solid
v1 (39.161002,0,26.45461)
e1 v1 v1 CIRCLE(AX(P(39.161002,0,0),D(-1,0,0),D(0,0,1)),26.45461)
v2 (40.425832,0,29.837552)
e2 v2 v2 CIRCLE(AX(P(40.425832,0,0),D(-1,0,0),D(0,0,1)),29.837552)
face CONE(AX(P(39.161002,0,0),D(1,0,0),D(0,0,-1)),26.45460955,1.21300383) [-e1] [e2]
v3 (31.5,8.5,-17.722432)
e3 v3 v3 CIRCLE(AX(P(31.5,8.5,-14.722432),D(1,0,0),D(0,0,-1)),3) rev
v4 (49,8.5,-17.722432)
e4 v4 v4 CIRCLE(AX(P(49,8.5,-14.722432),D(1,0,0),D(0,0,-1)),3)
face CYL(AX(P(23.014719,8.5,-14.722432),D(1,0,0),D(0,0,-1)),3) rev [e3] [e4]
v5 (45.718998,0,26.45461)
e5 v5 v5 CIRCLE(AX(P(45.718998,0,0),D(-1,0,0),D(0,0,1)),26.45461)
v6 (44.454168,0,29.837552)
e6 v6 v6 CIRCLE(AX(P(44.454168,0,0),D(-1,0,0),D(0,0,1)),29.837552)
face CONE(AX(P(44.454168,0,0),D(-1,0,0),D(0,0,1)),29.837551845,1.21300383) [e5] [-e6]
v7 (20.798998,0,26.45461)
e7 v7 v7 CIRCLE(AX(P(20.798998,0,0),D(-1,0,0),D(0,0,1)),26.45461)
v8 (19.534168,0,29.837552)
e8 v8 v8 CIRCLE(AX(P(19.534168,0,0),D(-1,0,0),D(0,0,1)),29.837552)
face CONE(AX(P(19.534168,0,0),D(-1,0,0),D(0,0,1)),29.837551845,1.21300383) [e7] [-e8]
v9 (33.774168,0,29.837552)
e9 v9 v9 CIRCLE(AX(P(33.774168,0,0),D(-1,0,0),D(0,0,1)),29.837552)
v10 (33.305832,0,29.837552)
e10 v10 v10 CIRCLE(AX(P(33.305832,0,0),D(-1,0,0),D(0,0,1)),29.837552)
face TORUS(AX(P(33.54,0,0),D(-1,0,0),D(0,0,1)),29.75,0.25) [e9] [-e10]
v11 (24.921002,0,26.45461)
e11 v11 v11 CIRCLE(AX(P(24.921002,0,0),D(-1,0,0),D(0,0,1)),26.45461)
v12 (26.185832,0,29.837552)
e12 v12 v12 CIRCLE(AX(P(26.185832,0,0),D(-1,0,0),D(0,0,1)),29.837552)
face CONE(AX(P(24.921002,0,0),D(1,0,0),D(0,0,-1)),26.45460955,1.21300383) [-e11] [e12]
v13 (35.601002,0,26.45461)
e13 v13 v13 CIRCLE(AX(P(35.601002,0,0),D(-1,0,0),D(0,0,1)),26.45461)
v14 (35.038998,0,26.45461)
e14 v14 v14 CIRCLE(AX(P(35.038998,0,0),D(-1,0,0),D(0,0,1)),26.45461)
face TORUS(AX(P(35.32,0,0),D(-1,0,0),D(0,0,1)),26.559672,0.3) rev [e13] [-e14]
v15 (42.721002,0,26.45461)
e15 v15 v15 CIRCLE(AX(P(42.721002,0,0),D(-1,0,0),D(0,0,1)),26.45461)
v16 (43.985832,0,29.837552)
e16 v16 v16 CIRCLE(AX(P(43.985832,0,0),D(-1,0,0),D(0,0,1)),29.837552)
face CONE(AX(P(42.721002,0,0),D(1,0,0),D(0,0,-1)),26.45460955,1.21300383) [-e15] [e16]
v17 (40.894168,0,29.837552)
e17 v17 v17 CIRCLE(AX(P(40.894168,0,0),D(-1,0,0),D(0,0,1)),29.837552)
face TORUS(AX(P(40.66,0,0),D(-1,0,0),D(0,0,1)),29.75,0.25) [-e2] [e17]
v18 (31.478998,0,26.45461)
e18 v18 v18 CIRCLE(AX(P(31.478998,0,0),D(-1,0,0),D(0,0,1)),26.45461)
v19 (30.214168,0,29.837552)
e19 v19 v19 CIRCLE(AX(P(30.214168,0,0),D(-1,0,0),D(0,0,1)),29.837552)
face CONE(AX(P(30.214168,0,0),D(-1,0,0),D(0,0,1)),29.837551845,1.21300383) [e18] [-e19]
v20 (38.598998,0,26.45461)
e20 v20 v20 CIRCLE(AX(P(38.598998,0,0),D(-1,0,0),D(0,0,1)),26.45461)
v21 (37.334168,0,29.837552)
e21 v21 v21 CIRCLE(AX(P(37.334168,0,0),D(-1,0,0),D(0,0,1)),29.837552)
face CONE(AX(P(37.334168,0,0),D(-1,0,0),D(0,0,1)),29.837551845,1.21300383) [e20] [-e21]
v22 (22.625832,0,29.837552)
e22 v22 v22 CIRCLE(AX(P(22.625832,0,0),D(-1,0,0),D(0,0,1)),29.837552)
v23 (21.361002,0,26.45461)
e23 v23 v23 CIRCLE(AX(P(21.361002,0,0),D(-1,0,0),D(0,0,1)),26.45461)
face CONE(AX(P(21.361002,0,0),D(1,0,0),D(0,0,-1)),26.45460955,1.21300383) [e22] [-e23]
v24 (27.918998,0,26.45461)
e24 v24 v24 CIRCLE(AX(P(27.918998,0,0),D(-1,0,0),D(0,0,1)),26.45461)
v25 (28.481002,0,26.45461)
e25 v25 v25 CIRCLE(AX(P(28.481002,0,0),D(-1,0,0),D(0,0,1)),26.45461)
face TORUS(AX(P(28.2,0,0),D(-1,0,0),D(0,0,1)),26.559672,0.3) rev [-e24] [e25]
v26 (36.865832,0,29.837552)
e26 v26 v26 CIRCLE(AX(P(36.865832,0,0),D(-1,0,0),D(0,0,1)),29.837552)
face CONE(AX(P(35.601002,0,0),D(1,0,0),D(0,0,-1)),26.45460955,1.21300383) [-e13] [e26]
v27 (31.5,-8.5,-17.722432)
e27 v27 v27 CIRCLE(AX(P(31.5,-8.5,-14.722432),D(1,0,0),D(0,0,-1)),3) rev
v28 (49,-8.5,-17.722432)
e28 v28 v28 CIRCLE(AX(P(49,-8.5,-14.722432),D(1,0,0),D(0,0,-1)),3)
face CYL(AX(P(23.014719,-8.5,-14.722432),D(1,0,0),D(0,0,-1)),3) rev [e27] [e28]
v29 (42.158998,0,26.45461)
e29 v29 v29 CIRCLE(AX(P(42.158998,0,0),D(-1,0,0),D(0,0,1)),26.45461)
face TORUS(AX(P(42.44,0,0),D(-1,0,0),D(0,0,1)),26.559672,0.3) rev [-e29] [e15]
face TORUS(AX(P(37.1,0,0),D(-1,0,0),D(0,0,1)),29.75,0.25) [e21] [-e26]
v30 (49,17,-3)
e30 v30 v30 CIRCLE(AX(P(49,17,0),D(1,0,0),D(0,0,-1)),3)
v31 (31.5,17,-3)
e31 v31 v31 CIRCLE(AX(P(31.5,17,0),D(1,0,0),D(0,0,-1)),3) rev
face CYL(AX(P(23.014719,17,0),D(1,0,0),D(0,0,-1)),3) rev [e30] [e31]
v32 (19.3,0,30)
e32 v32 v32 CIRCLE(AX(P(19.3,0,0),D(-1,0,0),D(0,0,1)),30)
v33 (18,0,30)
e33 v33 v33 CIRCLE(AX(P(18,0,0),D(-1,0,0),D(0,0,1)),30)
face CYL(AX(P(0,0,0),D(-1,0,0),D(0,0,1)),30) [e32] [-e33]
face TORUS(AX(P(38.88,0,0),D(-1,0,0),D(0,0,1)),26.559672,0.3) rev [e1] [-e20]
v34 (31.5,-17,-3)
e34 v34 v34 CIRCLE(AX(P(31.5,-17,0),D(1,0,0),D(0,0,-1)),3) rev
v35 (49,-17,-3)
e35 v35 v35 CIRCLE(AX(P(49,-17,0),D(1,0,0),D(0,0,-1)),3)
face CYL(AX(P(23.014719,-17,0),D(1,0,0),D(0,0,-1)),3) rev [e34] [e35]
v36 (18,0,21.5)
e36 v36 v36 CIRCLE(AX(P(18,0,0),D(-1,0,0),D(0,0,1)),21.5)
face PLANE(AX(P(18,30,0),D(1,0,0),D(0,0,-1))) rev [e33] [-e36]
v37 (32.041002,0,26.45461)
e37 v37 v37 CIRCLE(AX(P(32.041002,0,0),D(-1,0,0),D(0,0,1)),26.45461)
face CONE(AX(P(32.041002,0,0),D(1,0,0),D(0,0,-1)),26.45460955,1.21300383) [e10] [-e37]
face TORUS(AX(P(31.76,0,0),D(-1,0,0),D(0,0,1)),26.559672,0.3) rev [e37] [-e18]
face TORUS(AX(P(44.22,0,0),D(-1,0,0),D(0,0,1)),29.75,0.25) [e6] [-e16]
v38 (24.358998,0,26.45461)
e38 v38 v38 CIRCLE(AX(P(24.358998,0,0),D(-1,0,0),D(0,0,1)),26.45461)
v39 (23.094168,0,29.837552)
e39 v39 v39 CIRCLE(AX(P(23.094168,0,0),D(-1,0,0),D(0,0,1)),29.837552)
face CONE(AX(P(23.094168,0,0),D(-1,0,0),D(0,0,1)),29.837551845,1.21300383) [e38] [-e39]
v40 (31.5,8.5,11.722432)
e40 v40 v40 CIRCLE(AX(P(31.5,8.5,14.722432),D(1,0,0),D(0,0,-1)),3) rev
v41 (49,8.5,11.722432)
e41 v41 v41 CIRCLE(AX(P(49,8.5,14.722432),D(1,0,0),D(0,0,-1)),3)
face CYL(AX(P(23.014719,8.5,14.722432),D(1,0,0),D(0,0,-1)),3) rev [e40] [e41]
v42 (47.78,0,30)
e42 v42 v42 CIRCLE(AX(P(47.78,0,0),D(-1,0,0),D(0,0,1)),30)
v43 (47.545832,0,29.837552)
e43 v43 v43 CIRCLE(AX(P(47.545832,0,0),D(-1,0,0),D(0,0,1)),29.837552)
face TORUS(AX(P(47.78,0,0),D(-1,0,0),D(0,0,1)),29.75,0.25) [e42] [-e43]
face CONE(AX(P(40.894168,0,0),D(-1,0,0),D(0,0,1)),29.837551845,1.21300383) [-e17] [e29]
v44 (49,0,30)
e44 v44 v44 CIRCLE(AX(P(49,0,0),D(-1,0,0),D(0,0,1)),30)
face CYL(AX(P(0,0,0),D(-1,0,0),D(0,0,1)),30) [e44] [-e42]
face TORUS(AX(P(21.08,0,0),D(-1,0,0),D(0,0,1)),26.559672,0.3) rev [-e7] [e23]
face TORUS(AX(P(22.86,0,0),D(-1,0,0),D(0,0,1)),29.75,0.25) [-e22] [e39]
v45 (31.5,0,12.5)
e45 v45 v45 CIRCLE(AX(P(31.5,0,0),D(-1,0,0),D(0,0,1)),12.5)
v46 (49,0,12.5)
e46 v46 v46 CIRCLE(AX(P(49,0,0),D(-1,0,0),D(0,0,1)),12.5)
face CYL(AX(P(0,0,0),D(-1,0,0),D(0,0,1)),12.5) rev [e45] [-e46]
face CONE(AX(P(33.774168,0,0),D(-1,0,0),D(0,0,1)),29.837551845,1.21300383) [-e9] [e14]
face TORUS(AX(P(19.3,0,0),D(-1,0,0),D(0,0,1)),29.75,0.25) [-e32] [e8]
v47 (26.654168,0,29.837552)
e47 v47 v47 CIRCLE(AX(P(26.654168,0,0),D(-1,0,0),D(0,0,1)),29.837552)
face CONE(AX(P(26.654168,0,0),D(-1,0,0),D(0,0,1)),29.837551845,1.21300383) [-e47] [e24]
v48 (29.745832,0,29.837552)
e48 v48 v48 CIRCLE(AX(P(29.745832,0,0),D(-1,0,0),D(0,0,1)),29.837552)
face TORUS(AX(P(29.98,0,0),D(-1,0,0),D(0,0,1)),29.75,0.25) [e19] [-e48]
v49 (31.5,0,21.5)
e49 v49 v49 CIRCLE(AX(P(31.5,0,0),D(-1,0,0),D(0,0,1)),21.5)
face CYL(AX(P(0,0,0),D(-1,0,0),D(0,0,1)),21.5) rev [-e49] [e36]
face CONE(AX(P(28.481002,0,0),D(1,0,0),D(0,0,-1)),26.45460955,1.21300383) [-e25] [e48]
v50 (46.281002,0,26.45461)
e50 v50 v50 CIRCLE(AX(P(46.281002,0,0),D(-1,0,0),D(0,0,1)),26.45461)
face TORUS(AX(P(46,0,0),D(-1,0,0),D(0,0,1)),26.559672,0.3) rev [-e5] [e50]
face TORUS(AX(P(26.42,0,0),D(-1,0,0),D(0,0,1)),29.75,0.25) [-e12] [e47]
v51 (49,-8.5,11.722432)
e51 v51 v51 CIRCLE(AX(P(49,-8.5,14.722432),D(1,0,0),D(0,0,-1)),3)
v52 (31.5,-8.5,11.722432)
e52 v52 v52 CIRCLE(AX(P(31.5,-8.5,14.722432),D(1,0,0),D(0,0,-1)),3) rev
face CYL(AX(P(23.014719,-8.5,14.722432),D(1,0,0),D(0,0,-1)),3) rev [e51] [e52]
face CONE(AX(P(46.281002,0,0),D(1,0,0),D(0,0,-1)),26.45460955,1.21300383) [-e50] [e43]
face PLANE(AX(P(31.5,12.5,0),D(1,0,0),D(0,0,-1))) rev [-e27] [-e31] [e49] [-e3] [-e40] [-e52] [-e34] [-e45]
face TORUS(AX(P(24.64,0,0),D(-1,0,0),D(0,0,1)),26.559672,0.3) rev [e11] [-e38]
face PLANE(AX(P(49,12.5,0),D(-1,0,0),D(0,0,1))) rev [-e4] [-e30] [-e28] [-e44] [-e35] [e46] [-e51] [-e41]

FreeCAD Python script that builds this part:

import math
import FreeCAD as App
import Part
import Sketcher

V = App.Vector
Q = App.Units.Quantity

doc = App.newDocument("Part")
params = doc.addObject("Spreadsheet::Sheet", "Params")
for row, (alias, value) in enumerate([
    ("sketch1_width", "31 mm"),
    ("sketch1_height", "9 mm"),
    ("sketch1_width2", "13.5 mm"),
    ("revolution_angle", "360 deg"),
    ("sketch2_radius", "0.3 mm"),
    ("sketch2_radius2", "0.25 mm"),
    ("sketch2_width", "3.56 mm"),
    ("groove_angle", "360 deg"),
    ("linearpattern_pitch", "3.56 mm"),
    ("sketch3_diameter", "6 mm"),
    ("pocket1_length", "17.5 mm"),
], start=1):
    params.set(f"A{row}", alias)
    params.set(f"B{row}", "=" + value)
    params.setAlias(f"B{row}", alias)

body = doc.addObject("PartDesign::Body", "Body")

# Sketch on XY plane
sketch1 = body.newObject("Sketcher::SketchObject", "Sketch")
sketch1.AttachmentSupport = (doc.getObject("XY_Plane"), [""])
sketch1.MapMode = "FlatFace"
sketch1.addGeometry(Part.LineSegment(V(49, 12.5, 0), V(49, 30, 0)), False)
sketch1.addGeometry(Part.LineSegment(V(49, 30, 0), V(18, 30, 0)), False)
sketch1.addGeometry(Part.LineSegment(V(18, 30, 0), V(18, 21.5, 0)), False)
sketch1.addGeometry(Part.LineSegment(V(18, 21.5, 0), V(31.5, 21.5, 0)), False)
sketch1.addGeometry(Part.LineSegment(V(31.5, 21.5, 0), V(31.5, 12.5, 0)), False)
sketch1.addGeometry(Part.LineSegment(V(31.5, 12.5, 0), V(49, 12.5, 0)), False)
sketch1.addConstraint(Sketcher.Constraint("Coincident", 0, 2, 1, 1))
sketch1.addConstraint(Sketcher.Constraint("Coincident", 1, 2, 2, 1))
sketch1.addConstraint(Sketcher.Constraint("Coincident", 2, 2, 3, 1))
sketch1.addConstraint(Sketcher.Constraint("Coincident", 3, 2, 4, 1))
sketch1.addConstraint(Sketcher.Constraint("Coincident", 4, 2, 5, 1))
sketch1.addConstraint(Sketcher.Constraint("Coincident", 5, 2, 0, 1))
sketch1.addConstraint(Sketcher.Constraint("Vertical", 0))
sketch1.addConstraint(Sketcher.Constraint("Horizontal", 1))
sketch1.addConstraint(Sketcher.Constraint("Vertical", 2))
sketch1.addConstraint(Sketcher.Constraint("Horizontal", 3))
sketch1.addConstraint(Sketcher.Constraint("Vertical", 4))
sketch1.addConstraint(Sketcher.Constraint("Horizontal", 5))
sketch1.addConstraint(Sketcher.Constraint("Equal", 5, 0))
sketch1.addConstraint(Sketcher.Constraint("DistanceX", 1, 2, 1, 1, 31.0))
sketch1.addConstraint(Sketcher.Constraint("DistanceY", 4, 2, 4, 1, 9.0))
sketch1.addConstraint(Sketcher.Constraint("DistanceX", 3, 1, 3, 2, 13.5))
sketch1.addConstraint(Sketcher.Constraint("DistanceX", -1, 1, 0, 2, 49.0))
sketch1.addConstraint(Sketcher.Constraint("DistanceY", -1, 1, 0, 2, 30.0))
sketch1.setExpression("Constraints[13]", "Params.sketch1_width")
sketch1.setExpression("Constraints[14]", "Params.sketch1_height")
sketch1.setExpression("Constraints[15]", "Params.sketch1_width2")
revolution = body.newObject("PartDesign::Revolution", "Revolution")
revolution.Profile = sketch1
revolution.ReferenceAxis = (sketch1, ["H_Axis"])
revolution.setExpression("Angle", "Params.revolution_angle")

# Sketch on XY plane
sketch2 = body.newObject("Sketcher::SketchObject", "Sketch001")
sketch2.AttachmentSupport = (doc.getObject("XY_Plane"), [""])
sketch2.MapMode = "FlatFace"
sketch2.addGeometry(Part.LineSegment(V(46.281002, 26.45461, 0), V(47.545832, 29.837552, 0)), False)
sketch2.addGeometry(Part.ArcOfCircle(Part.Circle(V(47.78, 29.75, 0), V(0, 0, 1), 0.25), math.radians(90), math.radians(159.5)), False)
sketch2.addGeometry(Part.LineSegment(V(47.78, 30, 0), V(44.22, 30, 0)), False)
sketch2.addGeometry(Part.ArcOfCircle(Part.Circle(V(44.22, 29.75, 0), V(0, 0, 1), 0.25), math.radians(20.5), math.radians(90)), False)
sketch2.addGeometry(Part.LineSegment(V(44.454168, 29.837552, 0), V(45.718998, 26.45461, 0)), False)
sketch2.addGeometry(Part.ArcOfCircle(Part.Circle(V(46, 26.559672, 0), V(0, 0, 1), 0.3), math.radians(-159.5), math.radians(-20.5)), False)
sketch2.addConstraint(Sketcher.Constraint("Tangent", 0, 2, 1, 2))
sketch2.addConstraint(Sketcher.Constraint("Tangent", 1, 1, 2, 1))
sketch2.addConstraint(Sketcher.Constraint("Tangent", 2, 2, 3, 2))
sketch2.addConstraint(Sketcher.Constraint("Tangent", 3, 1, 4, 1))
sketch2.addConstraint(Sketcher.Constraint("Tangent", 4, 2, 5, 1))
sketch2.addConstraint(Sketcher.Constraint("Tangent", 5, 2, 0, 1))
sketch2.addConstraint(Sketcher.Constraint("Horizontal", 2))
sketch2.addConstraint(Sketcher.Constraint("Equal", 1, 3))
sketch2.addConstraint(Sketcher.Constraint("Horizontal", 0, 2, 3, 1))
sketch2.addConstraint(Sketcher.Constraint("Radius", 5, 0.3))
sketch2.addConstraint(Sketcher.Constraint("Radius", 1, 0.25))
sketch2.addConstraint(Sketcher.Constraint("DistanceX", -1, 1, 5, 3, 46.0))
sketch2.addConstraint(Sketcher.Constraint("DistanceY", -1, 1, 1, 1, 30.0))
sketch2.addConstraint(Sketcher.Constraint("Angle", 0, Q("69.5 deg")))
sketch2.addConstraint(Sketcher.Constraint("DistanceX", 2, 2, 2, 1, 3.56))
sketch2.setExpression("Constraints[9]", "Params.sketch2_radius")
sketch2.setExpression("Constraints[10]", "Params.sketch2_radius2")
sketch2.setExpression("Constraints[14]", "Params.sketch2_width")
groove = body.newObject("PartDesign::Groove", "Groove")
groove.Profile = sketch2
groove.ReferenceAxis = (sketch2, ["H_Axis"])
groove.setExpression("Angle", "Params.groove_angle")
doc.recompute()

linearpattern = body.newObject("PartDesign::LinearPattern", "LinearPattern")
linearpattern.Originals = [groove]
linearpattern.Direction = (doc.getObject("X_Axis"), [""])
linearpattern.Mode = "offset"
linearpattern.setExpression("Offset", "Params.linearpattern_pitch")
linearpattern.Occurrences = 8
linearpattern.Reversed = True
body.Tip = linearpattern

# Sketch on YZ plane
sketch3 = body.newObject("Sketcher::SketchObject", "Sketch002")
sketch3.AttachmentSupport = (doc.getObject("YZ_Plane"), [""])
sketch3.MapMode = "FlatFace"
sketch3.AttachmentOffset = App.Placement(V(0, 0, 49), App.Rotation())
sketch3.addGeometry(Part.Circle(V(17, 0, 0), V(0, 0, 1), 3), False)
sketch3.addGeometry(Part.Circle(V(8.5, -14.722432, 0), V(0, 0, 1), 3), False)
sketch3.addGeometry(Part.Circle(V(-8.5, -14.722432, 0), V(0, 0, 1), 3), False)
sketch3.addGeometry(Part.Circle(V(-17, 0, 0), V(0, 0, 1), 3), False)
sketch3.addGeometry(Part.Circle(V(-8.5, 14.722432, 0), V(0, 0, 1), 3), False)
sketch3.addGeometry(Part.Circle(V(8.5, 14.722432, 0), V(0, 0, 1), 3), False)
sketch3.addConstraint(Sketcher.Constraint("Equal", 0, 1))
sketch3.addConstraint(Sketcher.Constraint("Equal", 1, 2))
sketch3.addConstraint(Sketcher.Constraint("Equal", 2, 3))
sketch3.addConstraint(Sketcher.Constraint("Equal", 3, 4))
sketch3.addConstraint(Sketcher.Constraint("Equal", 4, 5))
sketch3.addConstraint(Sketcher.Constraint("Symmetric", 0, 3, 3, 3, -1, 1))
sketch3.addConstraint(Sketcher.Constraint("Symmetric", 1, 3, 4, 3, -1, 1))
sketch3.addConstraint(Sketcher.Constraint("Symmetric", 2, 3, 5, 3, -1, 1))
sketch3.addConstraint(Sketcher.Constraint("Symmetric", 1, 3, 2, 3, -2))
sketch3.addConstraint(Sketcher.Constraint("PointOnObject", 0, 3, -1))
sketch3.addConstraint(Sketcher.Constraint("Diameter", 0, 6.0))
sketch3.addConstraint(Sketcher.Constraint("DistanceX", -1, 1, 0, 3, 17.0))
sketch3.addConstraint(Sketcher.Constraint("DistanceX", 2, 3, 1, 3, 17.0))
sketch3.addConstraint(Sketcher.Constraint("DistanceY", 1, 3, -1, 1, 14.722432))
sketch3.setExpression("Constraints[10]", "Params.sketch3_diameter")
pocket1 = body.newObject("PartDesign::Pocket", "Pocket")
pocket1.Profile = sketch3
pocket1.setExpression("Length", "Params.pocket1_length")

doc.recompute()
